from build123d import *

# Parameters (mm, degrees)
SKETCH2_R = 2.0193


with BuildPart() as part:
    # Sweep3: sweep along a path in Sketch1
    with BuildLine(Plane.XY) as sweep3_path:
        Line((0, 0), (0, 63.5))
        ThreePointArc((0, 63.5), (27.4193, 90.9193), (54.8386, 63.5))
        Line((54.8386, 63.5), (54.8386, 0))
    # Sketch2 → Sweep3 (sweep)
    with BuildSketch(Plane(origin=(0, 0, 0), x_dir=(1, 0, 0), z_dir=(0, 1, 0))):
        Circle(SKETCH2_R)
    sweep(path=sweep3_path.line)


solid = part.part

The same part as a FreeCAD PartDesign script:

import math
import FreeCAD as App
import Part
import Sketcher
Q = App.Units.Quantity

doc = App.newDocument("Part")
body = doc.addObject("PartDesign::Body", "Body")

# Sketch on XZ plane
sketch1 = doc.addObject("Sketcher::SketchObject", "Sketch")
body.addObject(sketch1)
sketch1.AttachmentSupport = (doc.XZ_Plane, [""])
sketch1.MapMode = "FlatFace"
sketch1.addGeometry(Part.Circle(App.Vector(0, 0, 0), App.Vector(0, 0, 1), 2), False)
sketch1.addConstraint([
    Sketcher.Constraint("Coincident", 0, 3, -1, 1),
    Sketcher.Constraint("Diameter", 0, Q("0.159 in")),
])

# Sketch on XY plane
sketch2 = doc.addObject("Sketcher::SketchObject", "Sketch001")
body.addObject(sketch2)
sketch2.AttachmentSupport = (doc.XY_Plane, [""])
sketch2.MapMode = "FlatFace"
sketch2.addGeometry([
    Part.LineSegment(App.Vector(0, 0, 0), App.Vector(0, 64, 0)),
    Part.ArcOfCircle(Part.Circle(App.Vector(27, 64, 0), App.Vector(0, 0, 1), 27), math.radians(0), math.radians(180)),
    Part.LineSegment(App.Vector(55, 64, 0), App.Vector(55, 0, 0)),
], False)
sketch2.addConstraint([
    Sketcher.Constraint("Tangent", 0, 2, 1, 2),
    Sketcher.Constraint("Tangent", 1, 1, 2, 1),
    Sketcher.Constraint("Vertical", 0),
    Sketcher.Constraint("Vertical", 2),
    Sketcher.Constraint("Coincident", 0, 1, -1, 1),
    Sketcher.Constraint("PointOnObject", 2, 2, -1),
    Sketcher.Constraint("DistanceY", 0, 1, 0, 2, Q("2.5 in")),
    Sketcher.Constraint("Radius", 1, Q("1.0795 in")),
])
doc.recompute()

additivepipe = doc.addObject("PartDesign::AdditivePipe", "AdditivePipe")
body.addObject(additivepipe)
additivepipe.Profile = sketch1
additivepipe.Spine = (sketch2, ["Edge1", "Edge2", "Edge3"])

doc.recompute()
